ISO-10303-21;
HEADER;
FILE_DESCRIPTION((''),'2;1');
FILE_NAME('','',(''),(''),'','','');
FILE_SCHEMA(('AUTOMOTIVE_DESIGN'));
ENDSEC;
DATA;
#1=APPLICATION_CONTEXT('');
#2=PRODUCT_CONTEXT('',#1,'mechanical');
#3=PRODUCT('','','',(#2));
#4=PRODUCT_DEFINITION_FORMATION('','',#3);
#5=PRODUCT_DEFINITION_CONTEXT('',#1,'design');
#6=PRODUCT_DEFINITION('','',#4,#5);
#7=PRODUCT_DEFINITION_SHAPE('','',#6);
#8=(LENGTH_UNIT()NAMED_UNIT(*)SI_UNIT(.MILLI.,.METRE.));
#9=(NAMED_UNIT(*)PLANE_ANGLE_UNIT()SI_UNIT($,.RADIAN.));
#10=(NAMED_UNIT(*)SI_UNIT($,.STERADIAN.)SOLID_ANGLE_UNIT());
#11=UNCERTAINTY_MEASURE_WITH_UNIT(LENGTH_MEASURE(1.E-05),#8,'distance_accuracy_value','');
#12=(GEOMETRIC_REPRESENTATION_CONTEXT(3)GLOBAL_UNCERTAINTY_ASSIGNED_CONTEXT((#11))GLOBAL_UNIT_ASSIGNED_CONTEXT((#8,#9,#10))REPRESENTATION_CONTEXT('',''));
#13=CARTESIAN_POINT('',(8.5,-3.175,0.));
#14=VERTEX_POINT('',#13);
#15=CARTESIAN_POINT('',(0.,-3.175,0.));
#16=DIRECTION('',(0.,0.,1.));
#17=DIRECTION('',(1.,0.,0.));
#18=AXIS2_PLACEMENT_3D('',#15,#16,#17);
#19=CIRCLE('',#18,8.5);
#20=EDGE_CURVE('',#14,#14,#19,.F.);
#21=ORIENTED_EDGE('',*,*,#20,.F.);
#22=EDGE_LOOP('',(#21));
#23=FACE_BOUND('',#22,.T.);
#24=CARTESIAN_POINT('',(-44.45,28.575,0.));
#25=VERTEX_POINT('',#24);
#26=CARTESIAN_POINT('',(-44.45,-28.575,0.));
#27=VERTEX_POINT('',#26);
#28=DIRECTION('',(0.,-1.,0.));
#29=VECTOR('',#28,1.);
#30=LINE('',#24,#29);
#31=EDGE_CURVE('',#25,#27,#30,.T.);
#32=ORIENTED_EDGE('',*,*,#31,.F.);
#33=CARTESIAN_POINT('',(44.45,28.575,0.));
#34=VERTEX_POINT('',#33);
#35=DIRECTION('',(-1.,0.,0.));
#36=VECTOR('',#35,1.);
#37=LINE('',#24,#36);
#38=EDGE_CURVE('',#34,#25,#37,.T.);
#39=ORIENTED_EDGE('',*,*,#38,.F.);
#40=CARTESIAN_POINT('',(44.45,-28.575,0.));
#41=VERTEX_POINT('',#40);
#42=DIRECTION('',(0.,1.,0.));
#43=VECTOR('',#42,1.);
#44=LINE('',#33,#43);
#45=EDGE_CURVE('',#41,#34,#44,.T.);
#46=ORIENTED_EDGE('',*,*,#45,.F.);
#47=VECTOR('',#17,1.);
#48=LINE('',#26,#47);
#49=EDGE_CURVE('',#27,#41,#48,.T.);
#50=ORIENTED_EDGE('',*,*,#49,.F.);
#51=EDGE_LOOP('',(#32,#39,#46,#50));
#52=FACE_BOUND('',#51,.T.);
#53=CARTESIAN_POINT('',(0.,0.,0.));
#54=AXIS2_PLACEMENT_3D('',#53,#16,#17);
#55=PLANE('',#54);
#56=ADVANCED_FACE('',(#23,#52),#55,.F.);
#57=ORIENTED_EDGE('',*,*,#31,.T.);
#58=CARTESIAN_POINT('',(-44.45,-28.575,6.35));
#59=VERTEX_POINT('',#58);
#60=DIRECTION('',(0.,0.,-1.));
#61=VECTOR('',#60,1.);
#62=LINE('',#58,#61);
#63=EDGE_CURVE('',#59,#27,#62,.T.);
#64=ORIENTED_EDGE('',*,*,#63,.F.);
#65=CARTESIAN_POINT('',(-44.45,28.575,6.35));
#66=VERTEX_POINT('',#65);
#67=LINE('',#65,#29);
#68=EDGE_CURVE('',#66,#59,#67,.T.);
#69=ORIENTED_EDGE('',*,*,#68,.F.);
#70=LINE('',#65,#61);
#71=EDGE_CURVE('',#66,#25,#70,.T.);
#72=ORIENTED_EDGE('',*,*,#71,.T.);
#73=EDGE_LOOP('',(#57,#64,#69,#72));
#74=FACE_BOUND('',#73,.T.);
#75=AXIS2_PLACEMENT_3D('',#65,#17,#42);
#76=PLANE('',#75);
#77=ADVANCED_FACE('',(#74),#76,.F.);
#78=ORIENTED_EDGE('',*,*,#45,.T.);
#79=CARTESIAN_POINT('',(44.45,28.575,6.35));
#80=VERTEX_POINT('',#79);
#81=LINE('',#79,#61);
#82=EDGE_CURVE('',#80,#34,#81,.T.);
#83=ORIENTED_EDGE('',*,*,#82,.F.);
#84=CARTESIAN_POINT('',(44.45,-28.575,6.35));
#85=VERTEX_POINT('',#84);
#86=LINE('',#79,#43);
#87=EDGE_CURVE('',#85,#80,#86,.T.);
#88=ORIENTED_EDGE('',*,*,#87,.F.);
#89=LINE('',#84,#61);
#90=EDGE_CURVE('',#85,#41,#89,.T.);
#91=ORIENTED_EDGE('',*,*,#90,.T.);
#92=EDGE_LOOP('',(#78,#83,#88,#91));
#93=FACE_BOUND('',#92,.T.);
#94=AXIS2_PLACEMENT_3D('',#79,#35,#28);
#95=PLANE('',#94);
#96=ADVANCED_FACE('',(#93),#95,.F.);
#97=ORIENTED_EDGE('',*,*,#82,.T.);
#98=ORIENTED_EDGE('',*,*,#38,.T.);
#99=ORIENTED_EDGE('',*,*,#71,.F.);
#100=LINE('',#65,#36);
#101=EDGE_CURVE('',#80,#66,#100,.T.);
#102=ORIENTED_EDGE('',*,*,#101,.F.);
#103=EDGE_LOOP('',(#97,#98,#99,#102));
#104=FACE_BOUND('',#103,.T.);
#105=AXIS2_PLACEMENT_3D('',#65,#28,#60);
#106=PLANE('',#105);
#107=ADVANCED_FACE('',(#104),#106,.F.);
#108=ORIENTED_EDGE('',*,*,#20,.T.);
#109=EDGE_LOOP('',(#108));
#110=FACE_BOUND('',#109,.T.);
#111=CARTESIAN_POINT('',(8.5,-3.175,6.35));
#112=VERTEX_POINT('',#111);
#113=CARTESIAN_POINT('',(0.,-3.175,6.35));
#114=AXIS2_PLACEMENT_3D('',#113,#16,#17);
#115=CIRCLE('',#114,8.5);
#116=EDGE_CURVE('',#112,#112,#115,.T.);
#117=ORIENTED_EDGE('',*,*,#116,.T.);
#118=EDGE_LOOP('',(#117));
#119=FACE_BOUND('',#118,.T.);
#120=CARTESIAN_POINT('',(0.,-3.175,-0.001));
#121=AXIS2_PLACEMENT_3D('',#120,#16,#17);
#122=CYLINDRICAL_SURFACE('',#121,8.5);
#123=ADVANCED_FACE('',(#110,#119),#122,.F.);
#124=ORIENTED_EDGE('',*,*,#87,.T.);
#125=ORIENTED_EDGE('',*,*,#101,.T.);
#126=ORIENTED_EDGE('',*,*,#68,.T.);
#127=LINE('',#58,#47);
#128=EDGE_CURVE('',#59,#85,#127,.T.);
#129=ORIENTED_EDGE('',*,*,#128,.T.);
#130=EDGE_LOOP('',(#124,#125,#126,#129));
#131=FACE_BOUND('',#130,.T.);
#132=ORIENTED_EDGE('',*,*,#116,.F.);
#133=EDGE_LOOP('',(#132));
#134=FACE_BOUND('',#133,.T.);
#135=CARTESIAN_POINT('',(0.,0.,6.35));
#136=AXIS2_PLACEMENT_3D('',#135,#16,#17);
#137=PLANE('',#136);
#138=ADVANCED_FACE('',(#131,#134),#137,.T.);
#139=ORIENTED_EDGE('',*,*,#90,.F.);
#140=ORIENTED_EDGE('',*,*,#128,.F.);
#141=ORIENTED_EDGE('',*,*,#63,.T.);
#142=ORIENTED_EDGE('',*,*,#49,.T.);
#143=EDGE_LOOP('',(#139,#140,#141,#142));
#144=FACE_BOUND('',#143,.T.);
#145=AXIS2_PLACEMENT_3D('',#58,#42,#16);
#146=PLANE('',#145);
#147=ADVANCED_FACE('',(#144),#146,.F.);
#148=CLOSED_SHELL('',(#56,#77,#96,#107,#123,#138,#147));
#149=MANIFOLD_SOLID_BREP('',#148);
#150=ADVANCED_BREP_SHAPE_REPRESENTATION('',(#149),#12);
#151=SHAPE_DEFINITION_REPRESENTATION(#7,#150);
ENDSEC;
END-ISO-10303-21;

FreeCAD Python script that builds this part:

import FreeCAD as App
import Part
import Sketcher
Q = App.Units.Quantity

doc = App.newDocument("Part")
body = doc.addObject("PartDesign::Body", "Body")

# Sketch on XY plane
sketch1 = doc.addObject("Sketcher::SketchObject", "Sketch")
body.addObject(sketch1)
sketch1.AttachmentSupport = (doc.XY_Plane, [""])
sketch1.MapMode = "FlatFace"
sketch1.addGeometry([
    Part.LineSegment(App.Vector(-44.45, 28.575, 0), App.Vector(-44.45, -28.575, 0)),
    Part.LineSegment(App.Vector(-44.45, -28.575, 0), App.Vector(44.45, -28.575, 0)),
    Part.LineSegment(App.Vector(44.45, -28.575, 0), App.Vector(44.45, 28.575, 0)),
    Part.LineSegment(App.Vector(44.45, 28.575, 0), App.Vector(-44.45, 28.575, 0)),
], False)
sketch1.addConstraint([
    Sketcher.Constraint("Coincident", 0, 2, 1, 1),
    Sketcher.Constraint("Coincident", 1, 2, 2, 1),
    Sketcher.Constraint("Coincident", 2, 2, 3, 1),
    Sketcher.Constraint("Coincident", 3, 2, 0, 1),
    Sketcher.Constraint("Vertical", 0),
    Sketcher.Constraint("Horizontal", 1),
    Sketcher.Constraint("Vertical", 2),
    Sketcher.Constraint("Horizontal", 3),
    Sketcher.Constraint("Symmetric", 0, 2, 2, 2, -1, 1),
    Sketcher.Constraint("DistanceX", 1, 1, 1, 2, Q("3.5 in")),
    Sketcher.Constraint("DistanceY", 0, 2, 0, 1, Q("2.25 in")),
])
pad1 = doc.addObject("PartDesign::Pad", "Pad")
body.addObject(pad1)
pad1.Profile = sketch1
pad1.Length = Q("0.25 in")

# Sketch on XY plane
sketch2 = doc.addObject("Sketcher::SketchObject", "Sketch001")
body.addObject(sketch2)
sketch2.AttachmentSupport = (doc.XY_Plane, [""])
sketch2.MapMode = "FlatFace"
sketch2.AttachmentOffset = App.Placement(App.Vector(0, 0, 0.25 * 25.4), App.Rotation())
sketch2.addGeometry(Part.Circle(App.Vector(0, -3.175, 0), App.Vector(0, 0, 1), 8.5), False)
sketch2.addConstraint([
    Sketcher.Constraint("PointOnObject", 0, 3, -2),
    Sketcher.Constraint("Diameter", 0, Q("17 mm")),
    Sketcher.Constraint("DistanceY", 0, 3, -1, 1, Q("0.125 in")),
])
pocket1 = doc.addObject("PartDesign::Pocket", "Pocket")
body.addObject(pocket1)
pocket1.Profile = sketch2
pocket1.Type = "UpToFirst"

doc.recompute()
